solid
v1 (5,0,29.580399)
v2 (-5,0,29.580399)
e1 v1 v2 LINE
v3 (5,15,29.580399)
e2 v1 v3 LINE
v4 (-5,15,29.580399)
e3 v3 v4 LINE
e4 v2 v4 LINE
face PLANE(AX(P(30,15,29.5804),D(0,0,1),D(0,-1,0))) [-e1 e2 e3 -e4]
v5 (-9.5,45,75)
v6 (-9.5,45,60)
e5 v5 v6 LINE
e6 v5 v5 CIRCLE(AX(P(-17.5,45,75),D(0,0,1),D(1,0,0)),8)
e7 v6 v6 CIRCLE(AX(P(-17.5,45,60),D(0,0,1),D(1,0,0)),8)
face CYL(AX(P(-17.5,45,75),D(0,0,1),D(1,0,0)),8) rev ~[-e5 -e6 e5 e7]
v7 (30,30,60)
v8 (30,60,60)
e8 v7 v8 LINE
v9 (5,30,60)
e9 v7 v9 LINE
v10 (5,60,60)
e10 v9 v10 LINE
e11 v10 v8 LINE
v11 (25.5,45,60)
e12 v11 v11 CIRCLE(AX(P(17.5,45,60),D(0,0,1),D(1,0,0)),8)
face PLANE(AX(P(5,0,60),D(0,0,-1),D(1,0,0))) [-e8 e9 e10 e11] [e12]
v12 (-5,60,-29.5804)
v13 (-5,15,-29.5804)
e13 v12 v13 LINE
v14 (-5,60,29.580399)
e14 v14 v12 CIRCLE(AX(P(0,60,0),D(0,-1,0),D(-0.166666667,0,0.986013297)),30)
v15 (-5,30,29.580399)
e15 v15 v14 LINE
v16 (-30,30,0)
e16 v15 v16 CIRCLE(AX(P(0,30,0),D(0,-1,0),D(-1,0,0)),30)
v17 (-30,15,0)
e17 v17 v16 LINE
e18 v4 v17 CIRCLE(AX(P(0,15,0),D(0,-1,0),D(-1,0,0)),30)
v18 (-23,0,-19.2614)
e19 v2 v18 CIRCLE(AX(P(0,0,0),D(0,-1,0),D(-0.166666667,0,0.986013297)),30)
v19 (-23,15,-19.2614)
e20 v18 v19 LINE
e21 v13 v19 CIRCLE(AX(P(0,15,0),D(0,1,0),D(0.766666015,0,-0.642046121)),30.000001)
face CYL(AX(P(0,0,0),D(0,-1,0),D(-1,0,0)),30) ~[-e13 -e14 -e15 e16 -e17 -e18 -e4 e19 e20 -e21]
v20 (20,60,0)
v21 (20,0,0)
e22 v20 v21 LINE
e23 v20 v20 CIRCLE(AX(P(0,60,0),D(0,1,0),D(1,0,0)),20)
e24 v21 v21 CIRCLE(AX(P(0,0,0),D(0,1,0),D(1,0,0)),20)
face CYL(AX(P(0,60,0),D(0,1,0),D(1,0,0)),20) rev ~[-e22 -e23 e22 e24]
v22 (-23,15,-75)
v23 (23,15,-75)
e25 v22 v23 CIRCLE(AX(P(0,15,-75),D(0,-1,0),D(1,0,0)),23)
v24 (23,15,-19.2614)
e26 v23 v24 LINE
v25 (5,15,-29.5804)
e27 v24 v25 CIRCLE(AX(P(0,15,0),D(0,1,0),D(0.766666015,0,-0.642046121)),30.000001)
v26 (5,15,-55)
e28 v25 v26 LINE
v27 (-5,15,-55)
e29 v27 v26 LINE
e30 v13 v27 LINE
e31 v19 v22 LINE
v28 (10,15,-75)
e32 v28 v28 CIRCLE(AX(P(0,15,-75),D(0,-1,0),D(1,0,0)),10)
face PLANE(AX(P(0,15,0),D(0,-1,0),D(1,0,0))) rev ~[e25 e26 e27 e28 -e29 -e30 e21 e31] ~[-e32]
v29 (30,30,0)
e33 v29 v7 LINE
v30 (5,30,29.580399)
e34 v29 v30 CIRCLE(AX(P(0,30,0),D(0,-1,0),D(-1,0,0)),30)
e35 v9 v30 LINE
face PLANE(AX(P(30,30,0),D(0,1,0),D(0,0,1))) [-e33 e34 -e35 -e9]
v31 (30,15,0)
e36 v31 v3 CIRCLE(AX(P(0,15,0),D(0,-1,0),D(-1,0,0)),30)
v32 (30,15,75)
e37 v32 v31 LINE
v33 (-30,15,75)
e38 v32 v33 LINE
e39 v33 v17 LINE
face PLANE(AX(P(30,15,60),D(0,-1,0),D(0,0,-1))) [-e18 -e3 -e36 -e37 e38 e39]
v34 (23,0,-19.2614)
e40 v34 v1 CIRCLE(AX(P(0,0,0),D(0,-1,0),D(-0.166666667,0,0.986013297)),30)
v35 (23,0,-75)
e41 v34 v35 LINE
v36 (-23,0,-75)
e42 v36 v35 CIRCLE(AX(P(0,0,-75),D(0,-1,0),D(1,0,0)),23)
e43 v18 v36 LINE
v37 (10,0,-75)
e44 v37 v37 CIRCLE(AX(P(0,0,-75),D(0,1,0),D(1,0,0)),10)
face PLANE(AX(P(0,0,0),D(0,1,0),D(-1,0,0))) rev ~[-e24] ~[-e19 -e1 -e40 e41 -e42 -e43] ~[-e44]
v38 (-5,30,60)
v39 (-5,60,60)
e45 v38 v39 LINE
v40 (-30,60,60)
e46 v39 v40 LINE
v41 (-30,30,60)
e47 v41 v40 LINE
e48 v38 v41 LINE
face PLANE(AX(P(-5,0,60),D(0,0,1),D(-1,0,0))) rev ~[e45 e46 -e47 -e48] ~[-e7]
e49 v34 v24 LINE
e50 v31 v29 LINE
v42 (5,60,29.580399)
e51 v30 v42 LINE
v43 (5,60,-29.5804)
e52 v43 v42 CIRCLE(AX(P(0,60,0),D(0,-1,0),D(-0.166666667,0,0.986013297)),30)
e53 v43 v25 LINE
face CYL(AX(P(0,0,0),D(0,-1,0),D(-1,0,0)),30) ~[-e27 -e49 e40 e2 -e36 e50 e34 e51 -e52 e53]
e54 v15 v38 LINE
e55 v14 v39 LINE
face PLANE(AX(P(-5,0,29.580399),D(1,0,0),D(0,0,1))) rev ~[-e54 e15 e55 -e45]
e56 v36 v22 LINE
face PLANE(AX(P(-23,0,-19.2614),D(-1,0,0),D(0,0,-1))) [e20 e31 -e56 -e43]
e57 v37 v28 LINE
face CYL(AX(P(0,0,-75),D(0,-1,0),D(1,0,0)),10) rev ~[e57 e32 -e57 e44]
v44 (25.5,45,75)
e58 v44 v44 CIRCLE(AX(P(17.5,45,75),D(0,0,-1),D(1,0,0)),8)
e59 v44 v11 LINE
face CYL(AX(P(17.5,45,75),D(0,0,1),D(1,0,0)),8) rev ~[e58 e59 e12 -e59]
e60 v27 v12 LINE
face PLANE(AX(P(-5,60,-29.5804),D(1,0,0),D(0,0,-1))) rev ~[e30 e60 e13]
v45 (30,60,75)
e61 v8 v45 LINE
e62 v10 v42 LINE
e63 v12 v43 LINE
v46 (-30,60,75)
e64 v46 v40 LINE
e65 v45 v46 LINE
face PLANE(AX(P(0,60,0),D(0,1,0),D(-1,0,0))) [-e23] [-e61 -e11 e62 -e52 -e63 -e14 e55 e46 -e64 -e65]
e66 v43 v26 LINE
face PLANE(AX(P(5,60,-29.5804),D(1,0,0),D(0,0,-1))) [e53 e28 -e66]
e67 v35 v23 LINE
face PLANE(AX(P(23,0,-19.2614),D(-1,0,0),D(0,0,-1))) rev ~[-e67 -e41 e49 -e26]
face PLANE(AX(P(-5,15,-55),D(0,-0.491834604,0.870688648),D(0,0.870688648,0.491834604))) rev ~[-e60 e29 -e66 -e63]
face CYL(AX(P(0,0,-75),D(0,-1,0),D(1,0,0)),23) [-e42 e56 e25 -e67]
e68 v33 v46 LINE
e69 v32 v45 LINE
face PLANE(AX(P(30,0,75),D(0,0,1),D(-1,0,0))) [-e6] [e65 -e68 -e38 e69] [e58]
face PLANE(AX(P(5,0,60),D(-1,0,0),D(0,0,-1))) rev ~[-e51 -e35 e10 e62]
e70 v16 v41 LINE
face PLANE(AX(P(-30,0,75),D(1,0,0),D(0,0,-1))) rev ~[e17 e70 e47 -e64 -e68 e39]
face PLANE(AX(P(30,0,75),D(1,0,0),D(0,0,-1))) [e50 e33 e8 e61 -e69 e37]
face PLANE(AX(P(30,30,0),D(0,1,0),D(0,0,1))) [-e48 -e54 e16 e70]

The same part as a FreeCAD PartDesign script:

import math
import FreeCAD as App
import Part
import Sketcher
Q = App.Units.Quantity

doc = App.newDocument("Part")
params = doc.addObject("Spreadsheet::Sheet", "Params")
for row, (alias, value) in enumerate([
    ("sketch1_radius", "30 mm"),
    ("sketch1_width", "60 mm"),
    ("sketch1_height", "15 mm"),
    ("pad1_length", "60 mm"),
    ("sketch2_width", "15 mm"),
    ("sketch2_height", "60 mm"),
    ("pad2_length", "60 mm"),
    ("sketch3_width", "15 mm"),
    ("pocket1_length", "60 mm"),
    ("sketch4_diameter", "16 mm"),
    ("pocket2_length", "15 mm"),
    ("sketch5_diameter", "40 mm"),
    ("pocket3_length", "60 mm"),
    ("sketch6_diameter", "20 mm"),
    ("sketch6_radius", "23 mm"),
    ("sketch6_radius2", "30 mm"),
    ("pad3_length", "15 mm"),
    ("sketch7_radius", "30 mm"),
    ("pad4_length", "45 mm"),
    ("sketch8_width", "45 mm"),
    ("pocket4_length", "45 mm"),
], start=1):
    params.set(f"A{row}", alias)
    params.set(f"B{row}", "=" + value)
    params.setAlias(f"B{row}", alias)

body = doc.addObject("PartDesign::Body", "Body")

# Sketch on XZ plane
sketch1 = doc.addObject("Sketcher::SketchObject", "Sketch")
body.addObject(sketch1)
sketch1.AttachmentSupport = (doc.XZ_Plane, [""])
sketch1.MapMode = "FlatFace"
sketch1.addGeometry([
    Part.LineSegment(App.Vector(-5, 29.580399, 0), App.Vector(-5, 60, 0)),  # 0
    Part.LineSegment(App.Vector(-5, 60, 0), App.Vector(-30, 60, 0)),  # 1
    Part.LineSegment(App.Vector(-30, 60, 0), App.Vector(-30, 75, 0)),  # 2
    Part.LineSegment(App.Vector(-30, 75, 0), App.Vector(30, 75, 0)),  # 3
    Part.LineSegment(App.Vector(30, 75, 0), App.Vector(30, 60, 0)),  # 4
    Part.LineSegment(App.Vector(30, 60, 0), App.Vector(5, 60, 0)),  # 5
    Part.LineSegment(App.Vector(5, 60, 0), App.Vector(5, 29.580399, 0)),  # 6
    Part.ArcOfCircle(Part.Circle(App.Vector(0, 0, 0), App.Vector(0, 0, 1), 30), math.radians(99.594068), math.radians(440.405932)),  # 7
], False)
sketch1.addConstraint([
    Sketcher.Constraint("Coincident", 0, 2, 1, 1),
    Sketcher.Constraint("Coincident", 1, 2, 2, 1),
    Sketcher.Constraint("Coincident", 2, 2, 3, 1),
    Sketcher.Constraint("Coincident", 3, 2, 4, 1),
    Sketcher.Constraint("Coincident", 4, 2, 5, 1),
    Sketcher.Constraint("Coincident", 5, 2, 6, 1),
    Sketcher.Constraint("Coincident", 6, 2, 7, 2),
    Sketcher.Constraint("Coincident", 7, 1, 0, 1),
    Sketcher.Constraint("Vertical", 0),
    Sketcher.Constraint("Horizontal", 1),
    Sketcher.Constraint("Vertical", 2),
    Sketcher.Constraint("Horizontal", 3),
    Sketcher.Constraint("Vertical", 4),
    Sketcher.Constraint("Horizontal", 5),
    Sketcher.Constraint("Vertical", 6),
    Sketcher.Constraint("Coincident", 7, 3, -1, 1),
    Sketcher.Constraint("Symmetric", 1, 2, 4, 2, -2),
    Sketcher.Constraint("Horizontal", 6, 2, 7, 1),
    Sketcher.Constraint("Radius", 7, Q("30 mm")),
    Sketcher.Constraint("DistanceX", 3, 1, 3, 2, Q("60 mm")),
    Sketcher.Constraint("DistanceY", 2, 1, 2, 2, Q("15 mm")),
    Sketcher.Constraint("DistanceX", 0, 2, -1, 1, Q("5 mm")),
    Sketcher.Constraint("DistanceY", -1, 1, 0, 2, Q("60 mm")),
])
sketch1.setExpression("Constraints[18]", "Params.sketch1_radius")
sketch1.setExpression("Constraints[19]", "Params.sketch1_width")
sketch1.setExpression("Constraints[20]", "Params.sketch1_height")
pad1 = doc.addObject("PartDesign::Pad", "Pad")
body.addObject(pad1)
pad1.Profile = sketch1
pad1.setExpression("Length", "Params.pad1_length")
pad1.Reversed = True

# Sketch on YZ plane
sketch2 = doc.addObject("Sketcher::SketchObject", "Sketch001")
body.addObject(sketch2)
sketch2.AttachmentSupport = (doc.YZ_Plane, [""])
sketch2.MapMode = "FlatFace"
sketch2.AttachmentOffset = App.Placement(App.Vector(0, 0, 30), App.Rotation())
sketch2.addGeometry([
    Part.LineSegment(App.Vector(30, 0, 0), App.Vector(30, 60, 0)),
    Part.LineSegment(App.Vector(30, 60, 0), App.Vector(15, 60, 0)),
    Part.LineSegment(App.Vector(15, 60, 0), App.Vector(15, 0, 0)),
    Part.LineSegment(App.Vector(15, 0, 0), App.Vector(30, 0, 0)),
], False)
sketch2.addConstraint([
    Sketcher.Constraint("Coincident", 0, 2, 1, 1),
    Sketcher.Constraint("Coincident", 1, 2, 2, 1),
    Sketcher.Constraint("Coincident", 2, 2, 3, 1),
    Sketcher.Constraint("Coincident", 3, 2, 0, 1),
    Sketcher.Constraint("Vertical", 0),
    Sketcher.Constraint("Horizontal", 1),
    Sketcher.Constraint("Vertical", 2),
    Sketcher.Constraint("Horizontal", 3),
    Sketcher.Constraint("PointOnObject", 2, 2, -1),
    Sketcher.Constraint("DistanceX", 1, 2, 1, 1, Q("15 mm")),
    Sketcher.Constraint("DistanceX", -1, 1, 1, 2, Q("15 mm")),
    Sketcher.Constraint("DistanceY", 0, 1, 0, 2, Q("60 mm")),
])
sketch2.setExpression("Constraints[9]", "Params.sketch2_width")
sketch2.setExpression("Constraints[11]", "Params.sketch2_height")
pad2 = doc.addObject("PartDesign::Pad", "Pad001")
body.addObject(pad2)
pad2.Profile = sketch2
pad2.setExpression("Length", "Params.pad2_length")
pad2.Reversed = True

# Sketch on YZ plane
sketch3 = doc.addObject("Sketcher::SketchObject", "Sketch002")
body.addObject(sketch3)
sketch3.AttachmentSupport = (doc.YZ_Plane, [""])
sketch3.MapMode = "FlatFace"
sketch3.AttachmentOffset = App.Placement(App.Vector(0, 0, 30), App.Rotation())
sketch3.addGeometry([
    Part.LineSegment(App.Vector(0, 29.5804, 0), App.Vector(15, 29.5804, 0)),
    Part.LineSegment(App.Vector(15, 29.5804, 0), App.Vector(15, 75, 0)),
    Part.LineSegment(App.Vector(15, 75, 0), App.Vector(0, 75, 0)),
    Part.LineSegment(App.Vector(0, 75, 0), App.Vector(0, 29.5804, 0)),
], False)
sketch3.addConstraint([
    Sketcher.Constraint("Coincident", 0, 2, 1, 1),
    Sketcher.Constraint("Coincident", 1, 2, 2, 1),
    Sketcher.Constraint("Coincident", 2, 2, 3, 1),
    Sketcher.Constraint("Coincident", 3, 2, 0, 1),
    Sketcher.Constraint("Horizontal", 0),
    Sketcher.Constraint("Vertical", 1),
    Sketcher.Constraint("Horizontal", 2),
    Sketcher.Constraint("Vertical", 3),
    Sketcher.Constraint("PointOnObject", 2, 2, -2),
    Sketcher.Constraint("DistanceX", 0, 1, 0, 2, Q("15 mm")),
    Sketcher.Constraint("DistanceY", -1, 1, 1, 2, Q("75 mm")),
    Sketcher.Constraint("DistanceY", 1, 1, 1, 2, Q("45.4196 mm")),
])
sketch3.setExpression("Constraints[9]", "Params.sketch3_width")
pocket1 = doc.addObject("PartDesign::Pocket", "Pocket")
body.addObject(pocket1)
pocket1.Profile = sketch3
pocket1.setExpression("Length", "Params.pocket1_length")

# Sketch on XY plane
sketch4 = doc.addObject("Sketcher::SketchObject", "Sketch003")
body.addObject(sketch4)
sketch4.AttachmentSupport = (doc.XY_Plane, [""])
sketch4.MapMode = "FlatFace"
sketch4.AttachmentOffset = App.Placement(App.Vector(0, 0, 75), App.Rotation())
sketch4.addGeometry([
    Part.Circle(App.Vector(17.5, 45, 0), App.Vector(0, 0, 1), 8),
    Part.Circle(App.Vector(-17.5, 45, 0), App.Vector(0, 0, 1), 8),
], False)
sketch4.addConstraint([
    Sketcher.Constraint("Equal", 0, 1),
    Sketcher.Constraint("Symmetric", 0, 3, 1, 3, -2),
    Sketcher.Constraint("Diameter", 0, Q("16 mm")),
    Sketcher.Constraint("DistanceX", -1, 1, 0, 3, Q("17.5 mm")),
    Sketcher.Constraint("DistanceY", -1, 1, 0, 3, Q("45 mm")),
])
sketch4.setExpression("Constraints[2]", "Params.sketch4_diameter")
pocket2 = doc.addObject("PartDesign::Pocket", "Pocket001")
body.addObject(pocket2)
pocket2.Profile = sketch4
pocket2.setExpression("Length", "Params.pocket2_length")

# Sketch on XZ plane
sketch5 = doc.addObject("Sketcher::SketchObject", "Sketch004")
body.addObject(sketch5)
sketch5.AttachmentSupport = (doc.XZ_Plane, [""])
sketch5.MapMode = "FlatFace"
sketch5.AttachmentOffset = App.Placement(App.Vector(0, 0, -60), App.Rotation())
sketch5.addGeometry(Part.Circle(App.Vector(0, 0, 0), App.Vector(0, 0, 1), 20), False)
sketch5.addConstraint([
    Sketcher.Constraint("Coincident", 0, 3, -1, 1),
    Sketcher.Constraint("Diameter", 0, Q("40 mm")),
])
sketch5.setExpression("Constraints[1]", "Params.sketch5_diameter")
pocket3 = doc.addObject("PartDesign::Pocket", "Pocket002")
body.addObject(pocket3)
pocket3.Profile = sketch5
pocket3.setExpression("Length", "Params.pocket3_length")
pocket3.Reversed = True

# Sketch on XZ plane
sketch6 = doc.addObject("Sketcher::SketchObject", "Sketch005")
body.addObject(sketch6)
sketch6.AttachmentSupport = (doc.XZ_Plane, [""])
sketch6.MapMode = "FlatFace"
sketch6.addGeometry([
    Part.ArcOfCircle(Part.Circle(App.Vector(0, 0, 0), App.Vector(0, 0, 1), 30.000001), math.radians(-140.055437), math.radians(-39.944563)),  # 0
    Part.LineSegment(App.Vector(-23, -19.2614, 0), App.Vector(-23, -75, 0)),  # 1
    Part.ArcOfCircle(Part.Circle(App.Vector(0, -75, 0), App.Vector(0, 0, 1), 23), math.radians(180), math.radians(360)),  # 2
    Part.LineSegment(App.Vector(23, -75, 0), App.Vector(23, -19.2614, 0)),  # 3
    Part.Circle(App.Vector(0, -75, 0), App.Vector(0, 0, 1), 10),  # 4
], False)
sketch6.addConstraint([
    Sketcher.Constraint("Coincident", 0, 1, 1, 1),
    Sketcher.Constraint("Tangent", 1, 2, 2, 1),
    Sketcher.Constraint("Tangent", 2, 2, 3, 1),
    Sketcher.Constraint("Coincident", 3, 2, 0, 2),
    Sketcher.Constraint("Vertical", 1),
    Sketcher.Constraint("Vertical", 3),
    Sketcher.Constraint("Coincident", 0, 3, -1, 1),
    Sketcher.Constraint("Coincident", 4, 3, 2, 3),
    Sketcher.Constraint("PointOnObject", 2, 3, -2),
    Sketcher.Constraint("Diameter", 4, Q("20 mm")),
    Sketcher.Constraint("Radius", 2, Q("23 mm")),
    Sketcher.Constraint("DistanceY", 2, 3, -1, 1, Q("75 mm")),
    Sketcher.Constraint("Radius", 0, Q("30 mm")),
])
sketch6.setExpression("Constraints[9]", "Params.sketch6_diameter")
sketch6.setExpression("Constraints[10]", "Params.sketch6_radius")
sketch6.setExpression("Constraints[12]", "Params.sketch6_radius2")
pad3 = doc.addObject("PartDesign::Pad", "Pad002")
body.addObject(pad3)
pad3.Profile = sketch6
pad3.setExpression("Length", "Params.pad3_length")
pad3.Reversed = True

# Sketch on XZ plane
sketch7 = doc.addObject("Sketcher::SketchObject", "Sketch006")
body.addObject(sketch7)
sketch7.AttachmentSupport = (doc.XZ_Plane, [""])
sketch7.MapMode = "FlatFace"
sketch7.AttachmentOffset = App.Placement(App.Vector(0, 0, -60), App.Rotation())
sketch7.addGeometry([
    Part.LineSegment(App.Vector(5, -29.5804, 0), App.Vector(5, -55, 0)),
    Part.LineSegment(App.Vector(5, -55, 0), App.Vector(-5, -55, 0)),
    Part.LineSegment(App.Vector(-5, -55, 0), App.Vector(-5, -29.5804, 0)),
    Part.ArcOfCircle(Part.Circle(App.Vector(0, 0, 0), App.Vector(0, 0, 1), 30.000001), math.radians(-99.594068), math.radians(-80.405932)),
], False)
sketch7.addConstraint([
    Sketcher.Constraint("Coincident", 0, 2, 1, 1),
    Sketcher.Constraint("Coincident", 1, 2, 2, 1),
    Sketcher.Constraint("Coincident", 2, 2, 3, 1),
    Sketcher.Constraint("Coincident", 3, 2, 0, 1),
    Sketcher.Constraint("Vertical", 0),
    Sketcher.Constraint("Horizontal", 1),
    Sketcher.Constraint("Vertical", 2),
    Sketcher.Constraint("Coincident", 3, 3, -1, 1),
    Sketcher.Constraint("Horizontal", 2, 2, 3, 2),
    Sketcher.Constraint("DistanceX", -1, 1, 0, 2, Q("5 mm")),
    Sketcher.Constraint("Radius", 3, Q("30 mm")),
    Sketcher.Constraint("DistanceY", 0, 2, -1, 1, Q("55 mm")),
])
sketch7.setExpression("Constraints[10]", "Params.sketch7_radius")
pad4 = doc.addObject("PartDesign::Pad", "Pad003")
body.addObject(pad4)
pad4.Profile = sketch7
pad4.setExpression("Length", "Params.pad4_length")

# Sketch on YZ plane
sketch8 = doc.addObject("Sketcher::SketchObject", "Sketch007")
body.addObject(sketch8)
sketch8.AttachmentSupport = (doc.YZ_Plane, [""])
sketch8.MapMode = "FlatFace"
sketch8.AttachmentOffset = App.Placement(App.Vector(0, 0, -5), App.Rotation())
sketch8.addGeometry([
    Part.LineSegment(App.Vector(60, -29.5804, 0), App.Vector(60, -55, 0)),
    Part.LineSegment(App.Vector(60, -55, 0), App.Vector(15, -55, 0)),
    Part.LineSegment(App.Vector(15, -55, 0), App.Vector(60, -29.5804, 0)),
], False)
sketch8.addConstraint([
    Sketcher.Constraint("Coincident", 0, 2, 1, 1),
    Sketcher.Constraint("Coincident", 1, 2, 2, 1),
    Sketcher.Constraint("Coincident", 2, 2, 0, 1),
    Sketcher.Constraint("Vertical", 0),
    Sketcher.Constraint("Horizontal", 1),
    Sketcher.Constraint("DistanceX", 1, 2, 1, 1, Q("45 mm")),
    Sketcher.Constraint("DistanceX", -1, 1, 0, 2, Q("60 mm")),
    Sketcher.Constraint("DistanceY", 0, 2, -1, 1, Q("55 mm")),
    Sketcher.Constraint("DistanceY", 0, 2, 0, 1, Q("25.4196 mm")),
])
sketch8.setExpression("Constraints[5]", "Params.sketch8_width")
pocket4 = doc.addObject("PartDesign::Pocket", "Pocket003")
body.addObject(pocket4)
pocket4.Profile = sketch8
pocket4.setExpression("Length", "Params.pocket4_length")
pocket4.Reversed = True

doc.recompute()
